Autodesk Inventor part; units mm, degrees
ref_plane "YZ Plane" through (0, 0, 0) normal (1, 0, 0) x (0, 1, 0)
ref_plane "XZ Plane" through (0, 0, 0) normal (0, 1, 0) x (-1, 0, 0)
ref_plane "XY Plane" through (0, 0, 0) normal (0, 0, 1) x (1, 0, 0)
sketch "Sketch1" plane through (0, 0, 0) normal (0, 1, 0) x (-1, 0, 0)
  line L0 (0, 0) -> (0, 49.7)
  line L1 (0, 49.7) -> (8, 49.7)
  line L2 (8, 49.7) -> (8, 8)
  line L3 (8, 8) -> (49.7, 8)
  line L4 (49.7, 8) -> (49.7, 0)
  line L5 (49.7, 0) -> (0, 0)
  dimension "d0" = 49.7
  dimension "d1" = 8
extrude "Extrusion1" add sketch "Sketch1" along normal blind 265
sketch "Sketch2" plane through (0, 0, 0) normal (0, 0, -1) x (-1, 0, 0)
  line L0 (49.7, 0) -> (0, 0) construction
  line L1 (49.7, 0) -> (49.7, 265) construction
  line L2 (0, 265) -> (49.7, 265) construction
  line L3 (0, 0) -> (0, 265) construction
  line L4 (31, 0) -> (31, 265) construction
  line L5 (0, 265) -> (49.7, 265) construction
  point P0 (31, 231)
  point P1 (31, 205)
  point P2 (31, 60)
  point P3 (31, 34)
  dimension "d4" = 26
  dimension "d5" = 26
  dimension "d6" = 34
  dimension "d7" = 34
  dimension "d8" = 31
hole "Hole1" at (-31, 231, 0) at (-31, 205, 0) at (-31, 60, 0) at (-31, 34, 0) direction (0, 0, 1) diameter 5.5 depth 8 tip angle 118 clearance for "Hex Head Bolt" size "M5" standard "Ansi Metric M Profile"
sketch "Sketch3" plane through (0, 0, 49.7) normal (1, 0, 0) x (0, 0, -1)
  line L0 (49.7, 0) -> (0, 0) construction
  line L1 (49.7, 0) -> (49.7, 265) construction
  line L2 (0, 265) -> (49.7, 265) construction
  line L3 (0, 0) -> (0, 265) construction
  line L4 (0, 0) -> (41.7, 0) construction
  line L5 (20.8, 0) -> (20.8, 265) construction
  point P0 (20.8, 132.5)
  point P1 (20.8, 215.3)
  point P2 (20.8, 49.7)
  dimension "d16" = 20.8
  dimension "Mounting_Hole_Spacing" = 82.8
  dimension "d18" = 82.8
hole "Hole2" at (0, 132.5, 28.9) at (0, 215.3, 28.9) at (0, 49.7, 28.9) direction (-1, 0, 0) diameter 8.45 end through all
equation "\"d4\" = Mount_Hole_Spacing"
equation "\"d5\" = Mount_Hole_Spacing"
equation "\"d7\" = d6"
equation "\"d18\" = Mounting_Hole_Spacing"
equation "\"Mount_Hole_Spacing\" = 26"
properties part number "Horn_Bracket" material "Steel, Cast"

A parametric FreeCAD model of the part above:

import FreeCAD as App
import Part
import Sketcher
from FreeCAD import Vector
Q = App.Units.Quantity

doc = App.newDocument("Part")
body = doc.addObject("PartDesign::Body", "Body")

# Sketch on XZ plane
sketch1 = body.newObject("Sketcher::SketchObject", "Sketch")
sketch1.AttachmentSupport = (doc.getObject("XZ_Plane"), [""])
sketch1.MapMode = "FlatFace"
sketch1.addGeometry([
    Part.LineSegment(Vector(0, 49.7, 0), Vector(0, 0, 0)),  # 0
    Part.LineSegment(Vector(0, 0, 0), Vector(-49.7, 0, 0)),  # 1
    Part.LineSegment(Vector(-49.7, 0, 0), Vector(-49.7, 8, 0)),  # 2
    Part.LineSegment(Vector(-49.7, 8, 0), Vector(-8, 8, 0)),  # 3
    Part.LineSegment(Vector(-8, 8, 0), Vector(-8, 49.7, 0)),  # 4
    Part.LineSegment(Vector(-8, 49.7, 0), Vector(0, 49.7, 0)),  # 5
], False)
sketch1.addConstraint([
    Sketcher.Constraint("Coincident", 0, 2, 1, 1),
    Sketcher.Constraint("Coincident", 1, 2, 2, 1),
    Sketcher.Constraint("Coincident", 2, 2, 3, 1),
    Sketcher.Constraint("Coincident", 3, 2, 4, 1),
    Sketcher.Constraint("Coincident", 4, 2, 5, 1),
    Sketcher.Constraint("Coincident", 5, 2, 0, 1),
    Sketcher.Constraint("Vertical", 0),
    Sketcher.Constraint("Horizontal", 1),
    Sketcher.Constraint("Vertical", 2),
    Sketcher.Constraint("Horizontal", 3),
    Sketcher.Constraint("Vertical", 4),
    Sketcher.Constraint("Horizontal", 5),
    Sketcher.Constraint("Coincident", 0, 2, -1, 1),
    Sketcher.Constraint("Equal", 1, 0),
    Sketcher.Constraint("Equal", 5, 2),
    Sketcher.Constraint("DistanceX", 5, 1, 5, 2, Q("8 mm")),
    Sketcher.Constraint("DistanceX", 1, 2, 1, 1, Q("49.7 mm")),
])
pad1 = body.newObject("PartDesign::Pad", "Pad")
pad1.Profile = sketch1
pad1.Length = 265
pad1.Reversed = True

# Sketch on XY plane
sketch2 = body.newObject("Sketcher::SketchObject", "Sketch001")
sketch2.AttachmentSupport = (doc.getObject("XY_Plane"), [""])
sketch2.MapMode = "FlatFace"
sketch2.addGeometry([
    Part.Circle(Vector(-31, 231, 0), Vector(0, 0, 1), 2.75),
    Part.Circle(Vector(-31, 205, 0), Vector(0, 0, 1), 2.75),
    Part.Circle(Vector(-31, 60, 0), Vector(0, 0, 1), 2.75),
    Part.Circle(Vector(-31, 34, 0), Vector(0, 0, 1), 2.75),
], False)
sketch2.addConstraint([
    Sketcher.Constraint("Equal", 0, 1),
    Sketcher.Constraint("Equal", 1, 2),
    Sketcher.Constraint("Equal", 2, 3),
    Sketcher.Constraint("Vertical", 0, 3, 1, 3),
    Sketcher.Constraint("Vertical", 1, 3, 2, 3),
    Sketcher.Constraint("Vertical", 2, 3, 3, 3),
    Sketcher.Constraint("Diameter", 0, Q("5.5 mm")),
    Sketcher.Constraint("DistanceX", 0, 3, -1, 1, Q("31 mm")),
    Sketcher.Constraint("DistanceY", -1, 1, 0, 3, Q("231 mm")),
    Sketcher.Constraint("DistanceY", -1, 1, 1, 3, Q("205 mm")),
    Sketcher.Constraint("DistanceY", -1, 1, 2, 3, Q("60 mm")),
    Sketcher.Constraint("DistanceY", -1, 1, 3, 3, Q("34 mm")),
])
doc.recompute()
hole = body.newObject("PartDesign::Hole", "Hole")
hole.Profile = sketch2
hole.ThreadType = "None"
hole.Diameter = 5.5
hole.DepthType = "Dimension"
hole.Depth = 8
hole.DrillPoint = "Angled"
hole.DrillPointAngle = 118
hole.Reversed = True

# Sketch on YZ plane
sketch3 = body.newObject("Sketcher::SketchObject", "Sketch002")
sketch3.AttachmentSupport = (doc.getObject("YZ_Plane"), [""])
sketch3.MapMode = "FlatFace"
sketch3.addGeometry([
    Part.Circle(Vector(132.5, 28.9, 0), Vector(0, 0, 1), 4.225),
    Part.Circle(Vector(215.3, 28.9, 0), Vector(0, 0, 1), 4.225),
    Part.Circle(Vector(49.7, 28.9, 0), Vector(0, 0, 1), 4.225),
], False)
sketch3.addConstraint([
    Sketcher.Constraint("Equal", 0, 1),
    Sketcher.Constraint("Equal", 1, 2),
    Sketcher.Constraint("Horizontal", 0, 3, 1, 3),
    Sketcher.Constraint("Horizontal", 1, 3, 2, 3),
    Sketcher.Constraint("Diameter", 0, Q("8.45 mm")),
    Sketcher.Constraint("DistanceX", -1, 1, 0, 3, Q("132.5 mm")),
    Sketcher.Constraint("DistanceY", -1, 1, 0, 3, Q("28.9 mm")),
    Sketcher.Constraint("DistanceX", -1, 1, 1, 3, Q("215.3 mm")),
    Sketcher.Constraint("DistanceX", -1, 1, 2, 3, Q("49.7 mm")),
])
doc.recompute()
hole2 = body.newObject("PartDesign::Hole", "Hole001")
hole2.Profile = sketch3
hole2.ThreadType = "None"
hole2.Diameter = 8.45
hole2.DepthType = "ThroughAll"

doc.recompute()
